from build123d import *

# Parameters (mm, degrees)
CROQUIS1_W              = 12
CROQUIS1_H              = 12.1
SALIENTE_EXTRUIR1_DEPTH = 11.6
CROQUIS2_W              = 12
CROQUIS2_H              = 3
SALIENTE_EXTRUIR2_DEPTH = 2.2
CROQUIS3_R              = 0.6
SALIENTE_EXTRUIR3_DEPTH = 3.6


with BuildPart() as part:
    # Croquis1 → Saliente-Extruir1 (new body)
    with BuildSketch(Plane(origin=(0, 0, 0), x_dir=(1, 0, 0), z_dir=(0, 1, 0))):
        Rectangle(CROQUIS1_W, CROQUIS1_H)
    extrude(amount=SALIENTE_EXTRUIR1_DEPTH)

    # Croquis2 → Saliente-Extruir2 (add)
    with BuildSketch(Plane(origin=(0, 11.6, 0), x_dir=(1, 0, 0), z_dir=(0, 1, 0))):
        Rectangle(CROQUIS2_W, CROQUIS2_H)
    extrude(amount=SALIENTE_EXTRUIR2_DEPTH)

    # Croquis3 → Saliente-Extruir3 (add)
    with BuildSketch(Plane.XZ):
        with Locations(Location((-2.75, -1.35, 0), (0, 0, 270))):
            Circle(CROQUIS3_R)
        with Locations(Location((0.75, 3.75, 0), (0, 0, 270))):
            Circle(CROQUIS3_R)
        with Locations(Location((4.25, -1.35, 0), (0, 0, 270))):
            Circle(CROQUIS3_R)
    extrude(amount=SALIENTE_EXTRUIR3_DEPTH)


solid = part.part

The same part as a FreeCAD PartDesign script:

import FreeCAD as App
import Part
import Sketcher
from FreeCAD import Vector

doc = App.newDocument("Part")
body = doc.addObject("PartDesign::Body", "Body")

sketch1 = doc.addObject("Sketcher::SketchObject", "Sketch")
body.addObject(sketch1)
sketch1.AttachmentSupport = (doc.XZ_Plane, [""])
sketch1.MapMode = "FlatFace"
sketch1.addGeometry(Part.LineSegment(Vector(-6, -6, 0), Vector(-6, 6, 0)), False)
sketch1.addGeometry(Part.LineSegment(Vector(-6, 6, 0), Vector(6, 6, 0)), False)
sketch1.addGeometry(Part.LineSegment(Vector(6, 6, 0), Vector(6, -6, 0)), False)
sketch1.addGeometry(Part.LineSegment(Vector(6, -6, 0), Vector(-6, -6, 0)), False)
sketch1.addConstraint(Sketcher.Constraint("Coincident", 0, 2, 1, 1))
sketch1.addConstraint(Sketcher.Constraint("Coincident", 1, 2, 2, 1))
sketch1.addConstraint(Sketcher.Constraint("Coincident", 2, 2, 3, 1))
sketch1.addConstraint(Sketcher.Constraint("Coincident", 3, 2, 0, 1))
sketch1.addConstraint(Sketcher.Constraint("Vertical", 0))
sketch1.addConstraint(Sketcher.Constraint("Horizontal", 1))
sketch1.addConstraint(Sketcher.Constraint("Vertical", 2))
sketch1.addConstraint(Sketcher.Constraint("Horizontal", 3))
sketch1.addConstraint(Sketcher.Constraint("Symmetric", 0, 2, 2, 2, -1, 1))
sketch1.addConstraint(Sketcher.Constraint("DistanceX", 1, 1, 1, 2, 12.0))
sketch1.addConstraint(Sketcher.Constraint("DistanceY", 0, 1, 0, 2, 12.1))
pad1 = doc.addObject("PartDesign::Pad", "Pad")
body.addObject(pad1)
pad1.Profile = sketch1
pad1.Length = 11.6
pad1.Reversed = True

sketch2 = doc.addObject("Sketcher::SketchObject", "Sketch001")
body.addObject(sketch2)
sketch2.AttachmentSupport = (doc.XZ_Plane, [""])
sketch2.MapMode = "FlatFace"
sketch2.AttachmentOffset = App.Placement(Vector(0, 0, -11.6), App.Rotation())
sketch2.addGeometry(Part.LineSegment(Vector(-6, -1.5, 0), Vector(-6, 1.5, 0)), False)
sketch2.addGeometry(Part.LineSegment(Vector(-6, 1.5, 0), Vector(6, 1.5, 0)), False)
sketch2.addGeometry(Part.LineSegment(Vector(6, 1.5, 0), Vector(6, -1.5, 0)), False)
sketch2.addGeometry(Part.LineSegment(Vector(6, -1.5, 0), Vector(-6, -1.5, 0)), False)
sketch2.addConstraint(Sketcher.Constraint("Coincident", 0, 2, 1, 1))
sketch2.addConstraint(Sketcher.Constraint("Coincident", 1, 2, 2, 1))
sketch2.addConstraint(Sketcher.Constraint("Coincident", 2, 2, 3, 1))
sketch2.addConstraint(Sketcher.Constraint("Coincident", 3, 2, 0, 1))
sketch2.addConstraint(Sketcher.Constraint("Vertical", 0))
sketch2.addConstraint(Sketcher.Constraint("Horizontal", 1))
sketch2.addConstraint(Sketcher.Constraint("Vertical", 2))
sketch2.addConstraint(Sketcher.Constraint("Horizontal", 3))
sketch2.addConstraint(Sketcher.Constraint("Symmetric", 0, 2, 2, 2, -1, 1))
sketch2.addConstraint(Sketcher.Constraint("DistanceX", 1, 1, 1, 2, 12.0))
sketch2.addConstraint(Sketcher.Constraint("DistanceY", 0, 1, 0, 2, 3.0))
pad2 = doc.addObject("PartDesign::Pad", "Pad001")
body.addObject(pad2)
pad2.Profile = sketch2
pad2.Length = 2.2
pad2.Reversed = True

sketch3 = doc.addObject("Sketcher::SketchObject", "Sketch002")
body.addObject(sketch3)
sketch3.AttachmentSupport = (doc.XZ_Plane, [""])
sketch3.MapMode = "FlatFace"
sketch3.addGeometry(Part.Circle(Vector(-2.8, -1.4, 0), Vector(0, 0, 1), 0.6), False)
sketch3.addGeometry(Part.Circle(Vector(0.8, 3.8, 0), Vector(0, 0, 1), 0.6), False)
sketch3.addGeometry(Part.Circle(Vector(4.2, -1.4, 0), Vector(0, 0, 1), 0.6), False)
sketch3.addConstraint(Sketcher.Constraint("Equal", 0, 1))
sketch3.addConstraint(Sketcher.Constraint("Equal", 1, 2))
sketch3.addConstraint(Sketcher.Constraint("Horizontal", 0, 3, 2, 3))
sketch3.addConstraint(Sketcher.Constraint("Diameter", 0, 1.2))
sketch3.addConstraint(Sketcher.Constraint("DistanceX", 0, 3, 2, 3, 7.0))
sketch3.addConstraint(Sketcher.Constraint("DistanceX", 0, 3, 1, 3, 3.5))
sketch3.addConstraint(Sketcher.Constraint("DistanceY", 0, 3, 1, 3, 5.1))
sketch3.addConstraint(Sketcher.Constraint("DistanceX", 0, 3, -1, 1, 2.75))
sketch3.addConstraint(Sketcher.Constraint("DistanceY", 0, 3, -1, 1, 1.35))
pad3 = doc.addObject("PartDesign::Pad", "Pad002")
body.addObject(pad3)
pad3.Profile = sketch3
pad3.Length = 3.6

doc.recompute()
